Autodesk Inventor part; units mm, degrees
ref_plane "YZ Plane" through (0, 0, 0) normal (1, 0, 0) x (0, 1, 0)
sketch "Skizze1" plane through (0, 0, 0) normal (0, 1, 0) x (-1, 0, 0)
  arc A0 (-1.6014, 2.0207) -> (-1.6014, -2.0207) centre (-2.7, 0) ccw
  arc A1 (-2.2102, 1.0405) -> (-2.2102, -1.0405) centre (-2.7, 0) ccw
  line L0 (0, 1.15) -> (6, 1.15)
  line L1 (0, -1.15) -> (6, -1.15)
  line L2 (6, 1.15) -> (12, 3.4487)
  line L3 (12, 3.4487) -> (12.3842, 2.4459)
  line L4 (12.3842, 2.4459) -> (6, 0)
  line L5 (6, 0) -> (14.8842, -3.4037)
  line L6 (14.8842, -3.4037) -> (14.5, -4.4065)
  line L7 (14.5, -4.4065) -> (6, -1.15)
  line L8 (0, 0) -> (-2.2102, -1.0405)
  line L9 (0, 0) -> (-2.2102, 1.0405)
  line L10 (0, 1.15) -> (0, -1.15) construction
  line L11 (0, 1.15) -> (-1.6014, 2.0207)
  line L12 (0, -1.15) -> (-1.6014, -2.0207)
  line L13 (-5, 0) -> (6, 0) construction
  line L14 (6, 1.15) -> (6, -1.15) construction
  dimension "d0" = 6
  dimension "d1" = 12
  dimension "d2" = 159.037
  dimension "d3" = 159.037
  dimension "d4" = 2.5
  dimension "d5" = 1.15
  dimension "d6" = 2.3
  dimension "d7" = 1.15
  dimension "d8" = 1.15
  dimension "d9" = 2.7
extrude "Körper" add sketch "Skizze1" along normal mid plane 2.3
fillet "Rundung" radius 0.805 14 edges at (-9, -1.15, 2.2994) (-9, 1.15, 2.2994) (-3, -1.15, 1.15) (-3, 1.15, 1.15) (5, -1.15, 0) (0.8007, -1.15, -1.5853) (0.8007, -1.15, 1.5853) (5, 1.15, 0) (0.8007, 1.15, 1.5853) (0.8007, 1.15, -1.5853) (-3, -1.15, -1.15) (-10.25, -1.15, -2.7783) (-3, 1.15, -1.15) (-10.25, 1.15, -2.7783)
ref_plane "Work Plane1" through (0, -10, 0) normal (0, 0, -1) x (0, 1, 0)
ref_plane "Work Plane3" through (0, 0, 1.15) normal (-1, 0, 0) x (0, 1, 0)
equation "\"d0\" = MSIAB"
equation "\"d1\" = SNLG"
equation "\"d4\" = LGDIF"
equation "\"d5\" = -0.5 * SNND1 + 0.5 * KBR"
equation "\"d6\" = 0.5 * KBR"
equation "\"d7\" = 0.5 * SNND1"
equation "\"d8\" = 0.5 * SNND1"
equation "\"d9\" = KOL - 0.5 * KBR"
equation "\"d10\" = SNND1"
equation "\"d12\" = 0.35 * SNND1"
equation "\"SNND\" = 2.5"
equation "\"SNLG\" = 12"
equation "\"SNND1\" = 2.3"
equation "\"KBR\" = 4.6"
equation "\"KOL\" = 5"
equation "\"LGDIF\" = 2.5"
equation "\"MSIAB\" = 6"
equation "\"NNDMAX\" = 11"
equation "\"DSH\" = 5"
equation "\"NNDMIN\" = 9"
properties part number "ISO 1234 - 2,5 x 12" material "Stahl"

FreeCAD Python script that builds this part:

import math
import FreeCAD as App
import Part
import Sketcher

V = App.Vector


def edges_at(feature, points):
    """Names of the edges that pass closest to the given points."""
    edges = feature.Shape.Edges
    near = lambda p: min(range(len(edges)), key=lambda i: edges[i].distToShape(Part.Vertex(*p))[0])
    return sorted({f"Edge{near(p) + 1}" for p in points})

doc = App.newDocument("Part")
body = doc.addObject("PartDesign::Body", "Body")

# Sketch on XZ plane
sketch1 = doc.addObject("Sketcher::SketchObject", "Sketch")
body.addObject(sketch1)
sketch1.AttachmentSupport = (doc.XZ_Plane, [""])
sketch1.MapMode = "FlatFace"
sketch1.addGeometry([
    Part.LineSegment(V(0, 1.1, 0), V(1.6, 2, 0)),  # 0
    Part.ArcOfCircle(Part.Circle(V(2.7, 0, 0), V(0, 0, 1), 2.3), math.radians(-119), math.radians(119)),  # 1
    Part.LineSegment(V(1.6, -2, 0), V(0, -1.1, 0)),  # 2
    Part.LineSegment(V(0, -1.1, 0), V(-6, -1.1, 0)),  # 3
    Part.LineSegment(V(-6, -1.1, 0), V(-14.5, -4.4, 0)),  # 4
    Part.LineSegment(V(-14.5, -4.4, 0), V(-14.9, -3.4, 0)),  # 5
    Part.LineSegment(V(-14.9, -3.4, 0), V(-6, 0, 0)),  # 6
    Part.LineSegment(V(-6, 0, 0), V(-12.4, 2.4, 0)),  # 7
    Part.LineSegment(V(-12.4, 2.4, 0), V(-12, 3.4, 0)),  # 8
    Part.LineSegment(V(-12, 3.4, 0), V(-6, 1.1, 0)),  # 9
    Part.LineSegment(V(-6, 1.1, 0), V(0, 1.1, 0)),  # 10
    Part.ArcOfCircle(Part.Circle(V(2.7, 0, 0), V(0, 0, 1), 1.2), math.radians(-115), math.radians(115)),  # 11
    Part.LineSegment(V(2.2, 1, 0), V(0, 0, 0)),  # 12
    Part.LineSegment(V(0, 0, 0), V(2.2, -1, 0)),  # 13
], False)
sketch1.addConstraint([
    Sketcher.Constraint("Tangent", 0, 2, 1, 2),
    Sketcher.Constraint("Tangent", 1, 1, 2, 1),
    Sketcher.Constraint("Coincident", 2, 2, 3, 1),
    Sketcher.Constraint("Coincident", 3, 2, 4, 1),
    Sketcher.Constraint("Coincident", 4, 2, 5, 1),
    Sketcher.Constraint("Coincident", 5, 2, 6, 1),
    Sketcher.Constraint("Coincident", 6, 2, 7, 1),
    Sketcher.Constraint("Coincident", 7, 2, 8, 1),
    Sketcher.Constraint("Coincident", 8, 2, 9, 1),
    Sketcher.Constraint("Coincident", 9, 2, 10, 1),
    Sketcher.Constraint("Coincident", 10, 2, 0, 1),
    Sketcher.Constraint("Tangent", 11, 2, 12, 1),
    Sketcher.Constraint("Coincident", 12, 2, 13, 1),
    Sketcher.Constraint("Tangent", 13, 2, 11, 1),
    Sketcher.Constraint("Horizontal", 3),
    Sketcher.Constraint("Horizontal", 10),
    Sketcher.Constraint("Coincident", 12, 2, -1, 1),
    Sketcher.Constraint("Coincident", 11, 3, 1, 3),
    Sketcher.Constraint("Symmetric", 2, 2, 10, 2, -1, 1),
    Sketcher.Constraint("Symmetric", 0, 2, 1, 1, -1),
    Sketcher.Constraint("PointOnObject", 6, 2, -1),
    Sketcher.Constraint("Perpendicular", 4, 5),
    Sketcher.Constraint("Perpendicular", 5, 6),
    Sketcher.Constraint("Perpendicular", 7, 8),
    Sketcher.Constraint("Perpendicular", 8, 9),
    Sketcher.Constraint("Vertical", 3, 2, 6, 2),
    Sketcher.Constraint("Vertical", 6, 2, 9, 2),
    Sketcher.Constraint("Equal", 5, 8),
    Sketcher.Constraint("Radius", 1, 2.3),
    Sketcher.Constraint("DistanceX", 3, 2, 3, 1, 6.0),
    Sketcher.Constraint("Radius", 11, 1.15),
    Sketcher.Constraint("DistanceX", 8, 2, -1, 1, 12.0),
    Sketcher.Constraint("DistanceX", -1, 1, 1, 3, 2.7),
    Sketcher.Constraint("DistanceX", 5, 2, 7, 2, 2.5),
    Sketcher.Constraint("DistanceY", 3, 2, 9, 2, 2.3),
    Sketcher.Constraint("Distance", 6, 9.514),
])
pad1 = doc.addObject("PartDesign::Pad", "Pad")
body.addObject(pad1)
pad1.Profile = sketch1
pad1.Length = 2.3
pad1.Midplane = True
doc.recompute()

fillet = doc.addObject("PartDesign::Fillet", "Fillet")
body.addObject(fillet)
fillet.Base = (pad1, edges_at(pad1, [
    (-9, -1.15, 2.299),
    (-9, 1.15, 2.299),
    (-3, -1.15, 1.15),
    (-3, 1.15, 1.15),
    (5, -1.15, 0),
    (0.801, -1.15, -1.585),
    (0.801, -1.15, 1.585),
    (5, 1.15, 0),
    (0.801, 1.15, 1.585),
    (0.801, 1.15, -1.585),
    (-3, -1.15, -1.15),
    (-10.25, -1.15, -2.778),
    (-3, 1.15, -1.15),
    (-10.25, 1.15, -2.778),
]))
fillet.Radius = 0.805

doc.recompute()
